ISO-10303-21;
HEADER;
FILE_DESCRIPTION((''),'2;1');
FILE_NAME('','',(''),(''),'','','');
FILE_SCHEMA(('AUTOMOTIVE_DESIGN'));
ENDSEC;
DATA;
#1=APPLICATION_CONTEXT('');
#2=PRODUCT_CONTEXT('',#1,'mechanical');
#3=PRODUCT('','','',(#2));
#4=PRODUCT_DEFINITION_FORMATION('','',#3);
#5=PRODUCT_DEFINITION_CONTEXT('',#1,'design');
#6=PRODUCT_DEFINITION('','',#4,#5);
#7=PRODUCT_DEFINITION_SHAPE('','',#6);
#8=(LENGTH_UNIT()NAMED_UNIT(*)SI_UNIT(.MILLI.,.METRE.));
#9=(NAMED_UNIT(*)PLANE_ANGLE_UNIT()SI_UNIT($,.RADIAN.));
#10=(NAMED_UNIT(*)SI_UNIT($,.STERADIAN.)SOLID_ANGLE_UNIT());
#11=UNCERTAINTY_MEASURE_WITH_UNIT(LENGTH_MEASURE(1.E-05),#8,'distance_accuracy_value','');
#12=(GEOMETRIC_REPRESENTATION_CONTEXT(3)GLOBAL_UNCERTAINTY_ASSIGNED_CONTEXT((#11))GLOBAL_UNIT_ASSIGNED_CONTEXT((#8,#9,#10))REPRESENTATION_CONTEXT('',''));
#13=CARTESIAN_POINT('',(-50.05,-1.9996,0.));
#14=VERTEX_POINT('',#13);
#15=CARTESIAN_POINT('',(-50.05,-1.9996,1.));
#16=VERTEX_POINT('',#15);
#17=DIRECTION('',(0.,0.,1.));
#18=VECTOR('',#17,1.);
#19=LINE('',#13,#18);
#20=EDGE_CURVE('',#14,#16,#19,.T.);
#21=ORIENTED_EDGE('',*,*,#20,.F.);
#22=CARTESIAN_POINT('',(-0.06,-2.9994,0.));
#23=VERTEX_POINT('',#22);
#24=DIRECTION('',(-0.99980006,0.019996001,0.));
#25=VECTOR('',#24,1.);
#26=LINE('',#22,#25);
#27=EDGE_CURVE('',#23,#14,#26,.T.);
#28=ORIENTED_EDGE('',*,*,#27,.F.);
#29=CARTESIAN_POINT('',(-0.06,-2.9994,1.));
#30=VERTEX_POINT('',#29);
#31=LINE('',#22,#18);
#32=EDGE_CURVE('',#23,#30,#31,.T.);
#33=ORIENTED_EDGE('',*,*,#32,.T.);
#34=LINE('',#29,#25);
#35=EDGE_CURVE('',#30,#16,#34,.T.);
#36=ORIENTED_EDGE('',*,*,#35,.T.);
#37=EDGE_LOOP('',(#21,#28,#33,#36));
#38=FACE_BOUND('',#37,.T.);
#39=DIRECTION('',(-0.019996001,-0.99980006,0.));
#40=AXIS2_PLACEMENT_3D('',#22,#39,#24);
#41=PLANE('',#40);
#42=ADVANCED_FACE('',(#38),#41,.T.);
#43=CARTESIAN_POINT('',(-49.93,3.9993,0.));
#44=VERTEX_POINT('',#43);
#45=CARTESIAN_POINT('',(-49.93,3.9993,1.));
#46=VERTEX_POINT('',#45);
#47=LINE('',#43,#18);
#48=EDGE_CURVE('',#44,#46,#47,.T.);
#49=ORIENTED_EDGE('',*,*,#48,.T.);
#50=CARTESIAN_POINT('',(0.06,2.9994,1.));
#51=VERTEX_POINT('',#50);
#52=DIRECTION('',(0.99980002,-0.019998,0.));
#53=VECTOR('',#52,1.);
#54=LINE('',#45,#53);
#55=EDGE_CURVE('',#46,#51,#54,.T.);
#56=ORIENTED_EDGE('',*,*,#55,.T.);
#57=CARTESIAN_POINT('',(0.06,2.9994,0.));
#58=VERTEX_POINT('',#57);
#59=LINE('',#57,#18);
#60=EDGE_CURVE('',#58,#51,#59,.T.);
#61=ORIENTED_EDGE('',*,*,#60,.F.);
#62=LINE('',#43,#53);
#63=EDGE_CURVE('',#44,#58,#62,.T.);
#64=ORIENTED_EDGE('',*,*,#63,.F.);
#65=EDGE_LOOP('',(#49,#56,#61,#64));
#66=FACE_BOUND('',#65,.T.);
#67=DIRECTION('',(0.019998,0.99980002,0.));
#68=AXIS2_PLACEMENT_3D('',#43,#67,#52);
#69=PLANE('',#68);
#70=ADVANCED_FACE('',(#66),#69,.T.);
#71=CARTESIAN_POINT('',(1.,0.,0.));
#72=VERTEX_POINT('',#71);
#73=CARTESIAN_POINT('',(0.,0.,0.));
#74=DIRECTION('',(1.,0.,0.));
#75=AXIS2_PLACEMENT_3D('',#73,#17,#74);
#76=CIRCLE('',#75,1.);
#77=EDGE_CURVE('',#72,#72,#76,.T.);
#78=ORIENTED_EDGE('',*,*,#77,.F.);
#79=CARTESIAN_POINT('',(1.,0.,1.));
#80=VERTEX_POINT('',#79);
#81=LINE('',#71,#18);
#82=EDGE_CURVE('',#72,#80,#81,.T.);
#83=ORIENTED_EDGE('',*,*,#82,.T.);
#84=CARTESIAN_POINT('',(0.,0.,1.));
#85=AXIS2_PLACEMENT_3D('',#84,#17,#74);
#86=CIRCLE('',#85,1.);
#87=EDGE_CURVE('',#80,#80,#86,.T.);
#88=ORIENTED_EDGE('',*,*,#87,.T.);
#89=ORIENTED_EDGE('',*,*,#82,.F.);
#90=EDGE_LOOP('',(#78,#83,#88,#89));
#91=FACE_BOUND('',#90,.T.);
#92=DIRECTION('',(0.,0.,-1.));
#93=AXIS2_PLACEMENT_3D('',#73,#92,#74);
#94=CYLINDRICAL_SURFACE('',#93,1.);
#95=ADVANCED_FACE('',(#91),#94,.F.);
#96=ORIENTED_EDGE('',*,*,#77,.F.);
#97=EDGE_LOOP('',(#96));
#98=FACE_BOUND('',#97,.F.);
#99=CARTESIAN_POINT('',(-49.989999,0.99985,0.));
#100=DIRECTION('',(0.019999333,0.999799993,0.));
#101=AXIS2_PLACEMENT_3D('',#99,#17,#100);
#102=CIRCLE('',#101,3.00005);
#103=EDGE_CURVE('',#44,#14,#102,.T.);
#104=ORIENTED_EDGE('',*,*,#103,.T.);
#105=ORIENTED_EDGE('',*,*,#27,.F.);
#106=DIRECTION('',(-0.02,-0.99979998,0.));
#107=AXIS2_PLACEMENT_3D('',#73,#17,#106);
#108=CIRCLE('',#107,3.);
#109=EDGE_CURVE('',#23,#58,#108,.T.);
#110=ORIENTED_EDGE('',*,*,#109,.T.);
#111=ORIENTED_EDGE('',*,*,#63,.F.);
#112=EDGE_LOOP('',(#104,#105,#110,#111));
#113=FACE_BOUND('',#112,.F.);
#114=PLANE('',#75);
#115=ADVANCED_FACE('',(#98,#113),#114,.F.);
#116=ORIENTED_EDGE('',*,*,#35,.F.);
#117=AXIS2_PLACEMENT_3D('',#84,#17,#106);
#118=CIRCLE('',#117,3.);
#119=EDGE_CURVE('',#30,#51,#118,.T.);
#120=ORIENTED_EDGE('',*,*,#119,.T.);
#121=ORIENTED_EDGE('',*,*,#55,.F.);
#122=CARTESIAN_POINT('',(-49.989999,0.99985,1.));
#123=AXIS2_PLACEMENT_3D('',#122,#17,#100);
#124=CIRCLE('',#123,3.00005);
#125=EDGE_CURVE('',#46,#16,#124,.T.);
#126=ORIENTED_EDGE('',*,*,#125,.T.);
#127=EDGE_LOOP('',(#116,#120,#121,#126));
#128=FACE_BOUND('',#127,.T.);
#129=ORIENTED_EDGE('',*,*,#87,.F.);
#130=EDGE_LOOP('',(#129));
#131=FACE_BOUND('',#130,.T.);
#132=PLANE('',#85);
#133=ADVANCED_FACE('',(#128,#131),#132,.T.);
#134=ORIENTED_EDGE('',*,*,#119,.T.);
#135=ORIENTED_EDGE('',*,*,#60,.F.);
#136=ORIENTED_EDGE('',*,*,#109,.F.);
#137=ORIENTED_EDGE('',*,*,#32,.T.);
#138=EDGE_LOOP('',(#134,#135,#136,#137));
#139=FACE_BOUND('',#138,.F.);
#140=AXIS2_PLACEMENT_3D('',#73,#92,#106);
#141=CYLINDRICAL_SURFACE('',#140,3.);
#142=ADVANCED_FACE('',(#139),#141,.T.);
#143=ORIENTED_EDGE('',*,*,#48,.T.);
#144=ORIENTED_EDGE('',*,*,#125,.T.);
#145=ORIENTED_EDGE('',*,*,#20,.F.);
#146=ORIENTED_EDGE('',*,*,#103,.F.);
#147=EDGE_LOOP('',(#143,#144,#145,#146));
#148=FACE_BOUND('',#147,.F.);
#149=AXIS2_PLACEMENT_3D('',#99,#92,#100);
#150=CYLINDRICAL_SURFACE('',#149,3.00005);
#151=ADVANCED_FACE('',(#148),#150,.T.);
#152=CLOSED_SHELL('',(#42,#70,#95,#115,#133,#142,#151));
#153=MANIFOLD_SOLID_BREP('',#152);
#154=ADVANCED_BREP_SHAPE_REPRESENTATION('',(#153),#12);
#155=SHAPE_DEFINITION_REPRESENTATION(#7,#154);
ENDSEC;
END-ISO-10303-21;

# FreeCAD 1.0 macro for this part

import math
import FreeCAD as App
import Part
import Sketcher
Q = App.Units.Quantity

doc = App.newDocument("Part")
body = doc.addObject("PartDesign::Body", "Body")

# Sketch on XY plane
sketch1 = body.newObject("Sketcher::SketchObject", "Sketch")
sketch1.AttachmentSupport = (doc.getObject("XY_Plane"), [""])
sketch1.MapMode = "FlatFace"
sketch1.addGeometry([
    Part.LineSegment(App.Vector(0.06, 2.9994, 0), App.Vector(-49.93, 3.9993, 0)),  # 0
    Part.ArcOfCircle(Part.Circle(App.Vector(-49.99, 0.9998, 0), App.Vector(0, 0, 1), 3.0001), math.radians(88.854046), math.radians(268.854008)),  # 1
    Part.LineSegment(App.Vector(-50.05, -1.9996, 0), App.Vector(-0.06, -2.9994, 0)),  # 2
    Part.ArcOfCircle(Part.Circle(App.Vector(0, 0, 0), App.Vector(0, 0, 1), 3), math.radians(-91.145992), math.radians(88.854008)),  # 3
    Part.Circle(App.Vector(0, 0, 0), App.Vector(0, 0, 1), 1),  # 4
], False)
sketch1.addConstraint([
    Sketcher.Constraint("Tangent", 0, 2, 1, 1),
    Sketcher.Constraint("Tangent", 1, 2, 2, 1),
    Sketcher.Constraint("Tangent", 2, 2, 3, 1),
    Sketcher.Constraint("Tangent", 3, 2, 0, 1),
    Sketcher.Constraint("Coincident", 3, 3, -1, 1),
    Sketcher.Constraint("Coincident", 4, 3, -1, 1),
    Sketcher.Constraint("Equal", 1, 3),
    Sketcher.Constraint("Diameter", 4, Q("2 mm")),
    Sketcher.Constraint("Radius", 1, Q("3 mm")),
    Sketcher.Constraint("Distance", 0, Q("50 mm")),
    Sketcher.Constraint("DistanceY", 3, 2, 0, 2, Q("1 mm")),
])
pad1 = body.newObject("PartDesign::Pad", "Pad")
pad1.Profile = sketch1
pad1.Length = 1

doc.recompute()
